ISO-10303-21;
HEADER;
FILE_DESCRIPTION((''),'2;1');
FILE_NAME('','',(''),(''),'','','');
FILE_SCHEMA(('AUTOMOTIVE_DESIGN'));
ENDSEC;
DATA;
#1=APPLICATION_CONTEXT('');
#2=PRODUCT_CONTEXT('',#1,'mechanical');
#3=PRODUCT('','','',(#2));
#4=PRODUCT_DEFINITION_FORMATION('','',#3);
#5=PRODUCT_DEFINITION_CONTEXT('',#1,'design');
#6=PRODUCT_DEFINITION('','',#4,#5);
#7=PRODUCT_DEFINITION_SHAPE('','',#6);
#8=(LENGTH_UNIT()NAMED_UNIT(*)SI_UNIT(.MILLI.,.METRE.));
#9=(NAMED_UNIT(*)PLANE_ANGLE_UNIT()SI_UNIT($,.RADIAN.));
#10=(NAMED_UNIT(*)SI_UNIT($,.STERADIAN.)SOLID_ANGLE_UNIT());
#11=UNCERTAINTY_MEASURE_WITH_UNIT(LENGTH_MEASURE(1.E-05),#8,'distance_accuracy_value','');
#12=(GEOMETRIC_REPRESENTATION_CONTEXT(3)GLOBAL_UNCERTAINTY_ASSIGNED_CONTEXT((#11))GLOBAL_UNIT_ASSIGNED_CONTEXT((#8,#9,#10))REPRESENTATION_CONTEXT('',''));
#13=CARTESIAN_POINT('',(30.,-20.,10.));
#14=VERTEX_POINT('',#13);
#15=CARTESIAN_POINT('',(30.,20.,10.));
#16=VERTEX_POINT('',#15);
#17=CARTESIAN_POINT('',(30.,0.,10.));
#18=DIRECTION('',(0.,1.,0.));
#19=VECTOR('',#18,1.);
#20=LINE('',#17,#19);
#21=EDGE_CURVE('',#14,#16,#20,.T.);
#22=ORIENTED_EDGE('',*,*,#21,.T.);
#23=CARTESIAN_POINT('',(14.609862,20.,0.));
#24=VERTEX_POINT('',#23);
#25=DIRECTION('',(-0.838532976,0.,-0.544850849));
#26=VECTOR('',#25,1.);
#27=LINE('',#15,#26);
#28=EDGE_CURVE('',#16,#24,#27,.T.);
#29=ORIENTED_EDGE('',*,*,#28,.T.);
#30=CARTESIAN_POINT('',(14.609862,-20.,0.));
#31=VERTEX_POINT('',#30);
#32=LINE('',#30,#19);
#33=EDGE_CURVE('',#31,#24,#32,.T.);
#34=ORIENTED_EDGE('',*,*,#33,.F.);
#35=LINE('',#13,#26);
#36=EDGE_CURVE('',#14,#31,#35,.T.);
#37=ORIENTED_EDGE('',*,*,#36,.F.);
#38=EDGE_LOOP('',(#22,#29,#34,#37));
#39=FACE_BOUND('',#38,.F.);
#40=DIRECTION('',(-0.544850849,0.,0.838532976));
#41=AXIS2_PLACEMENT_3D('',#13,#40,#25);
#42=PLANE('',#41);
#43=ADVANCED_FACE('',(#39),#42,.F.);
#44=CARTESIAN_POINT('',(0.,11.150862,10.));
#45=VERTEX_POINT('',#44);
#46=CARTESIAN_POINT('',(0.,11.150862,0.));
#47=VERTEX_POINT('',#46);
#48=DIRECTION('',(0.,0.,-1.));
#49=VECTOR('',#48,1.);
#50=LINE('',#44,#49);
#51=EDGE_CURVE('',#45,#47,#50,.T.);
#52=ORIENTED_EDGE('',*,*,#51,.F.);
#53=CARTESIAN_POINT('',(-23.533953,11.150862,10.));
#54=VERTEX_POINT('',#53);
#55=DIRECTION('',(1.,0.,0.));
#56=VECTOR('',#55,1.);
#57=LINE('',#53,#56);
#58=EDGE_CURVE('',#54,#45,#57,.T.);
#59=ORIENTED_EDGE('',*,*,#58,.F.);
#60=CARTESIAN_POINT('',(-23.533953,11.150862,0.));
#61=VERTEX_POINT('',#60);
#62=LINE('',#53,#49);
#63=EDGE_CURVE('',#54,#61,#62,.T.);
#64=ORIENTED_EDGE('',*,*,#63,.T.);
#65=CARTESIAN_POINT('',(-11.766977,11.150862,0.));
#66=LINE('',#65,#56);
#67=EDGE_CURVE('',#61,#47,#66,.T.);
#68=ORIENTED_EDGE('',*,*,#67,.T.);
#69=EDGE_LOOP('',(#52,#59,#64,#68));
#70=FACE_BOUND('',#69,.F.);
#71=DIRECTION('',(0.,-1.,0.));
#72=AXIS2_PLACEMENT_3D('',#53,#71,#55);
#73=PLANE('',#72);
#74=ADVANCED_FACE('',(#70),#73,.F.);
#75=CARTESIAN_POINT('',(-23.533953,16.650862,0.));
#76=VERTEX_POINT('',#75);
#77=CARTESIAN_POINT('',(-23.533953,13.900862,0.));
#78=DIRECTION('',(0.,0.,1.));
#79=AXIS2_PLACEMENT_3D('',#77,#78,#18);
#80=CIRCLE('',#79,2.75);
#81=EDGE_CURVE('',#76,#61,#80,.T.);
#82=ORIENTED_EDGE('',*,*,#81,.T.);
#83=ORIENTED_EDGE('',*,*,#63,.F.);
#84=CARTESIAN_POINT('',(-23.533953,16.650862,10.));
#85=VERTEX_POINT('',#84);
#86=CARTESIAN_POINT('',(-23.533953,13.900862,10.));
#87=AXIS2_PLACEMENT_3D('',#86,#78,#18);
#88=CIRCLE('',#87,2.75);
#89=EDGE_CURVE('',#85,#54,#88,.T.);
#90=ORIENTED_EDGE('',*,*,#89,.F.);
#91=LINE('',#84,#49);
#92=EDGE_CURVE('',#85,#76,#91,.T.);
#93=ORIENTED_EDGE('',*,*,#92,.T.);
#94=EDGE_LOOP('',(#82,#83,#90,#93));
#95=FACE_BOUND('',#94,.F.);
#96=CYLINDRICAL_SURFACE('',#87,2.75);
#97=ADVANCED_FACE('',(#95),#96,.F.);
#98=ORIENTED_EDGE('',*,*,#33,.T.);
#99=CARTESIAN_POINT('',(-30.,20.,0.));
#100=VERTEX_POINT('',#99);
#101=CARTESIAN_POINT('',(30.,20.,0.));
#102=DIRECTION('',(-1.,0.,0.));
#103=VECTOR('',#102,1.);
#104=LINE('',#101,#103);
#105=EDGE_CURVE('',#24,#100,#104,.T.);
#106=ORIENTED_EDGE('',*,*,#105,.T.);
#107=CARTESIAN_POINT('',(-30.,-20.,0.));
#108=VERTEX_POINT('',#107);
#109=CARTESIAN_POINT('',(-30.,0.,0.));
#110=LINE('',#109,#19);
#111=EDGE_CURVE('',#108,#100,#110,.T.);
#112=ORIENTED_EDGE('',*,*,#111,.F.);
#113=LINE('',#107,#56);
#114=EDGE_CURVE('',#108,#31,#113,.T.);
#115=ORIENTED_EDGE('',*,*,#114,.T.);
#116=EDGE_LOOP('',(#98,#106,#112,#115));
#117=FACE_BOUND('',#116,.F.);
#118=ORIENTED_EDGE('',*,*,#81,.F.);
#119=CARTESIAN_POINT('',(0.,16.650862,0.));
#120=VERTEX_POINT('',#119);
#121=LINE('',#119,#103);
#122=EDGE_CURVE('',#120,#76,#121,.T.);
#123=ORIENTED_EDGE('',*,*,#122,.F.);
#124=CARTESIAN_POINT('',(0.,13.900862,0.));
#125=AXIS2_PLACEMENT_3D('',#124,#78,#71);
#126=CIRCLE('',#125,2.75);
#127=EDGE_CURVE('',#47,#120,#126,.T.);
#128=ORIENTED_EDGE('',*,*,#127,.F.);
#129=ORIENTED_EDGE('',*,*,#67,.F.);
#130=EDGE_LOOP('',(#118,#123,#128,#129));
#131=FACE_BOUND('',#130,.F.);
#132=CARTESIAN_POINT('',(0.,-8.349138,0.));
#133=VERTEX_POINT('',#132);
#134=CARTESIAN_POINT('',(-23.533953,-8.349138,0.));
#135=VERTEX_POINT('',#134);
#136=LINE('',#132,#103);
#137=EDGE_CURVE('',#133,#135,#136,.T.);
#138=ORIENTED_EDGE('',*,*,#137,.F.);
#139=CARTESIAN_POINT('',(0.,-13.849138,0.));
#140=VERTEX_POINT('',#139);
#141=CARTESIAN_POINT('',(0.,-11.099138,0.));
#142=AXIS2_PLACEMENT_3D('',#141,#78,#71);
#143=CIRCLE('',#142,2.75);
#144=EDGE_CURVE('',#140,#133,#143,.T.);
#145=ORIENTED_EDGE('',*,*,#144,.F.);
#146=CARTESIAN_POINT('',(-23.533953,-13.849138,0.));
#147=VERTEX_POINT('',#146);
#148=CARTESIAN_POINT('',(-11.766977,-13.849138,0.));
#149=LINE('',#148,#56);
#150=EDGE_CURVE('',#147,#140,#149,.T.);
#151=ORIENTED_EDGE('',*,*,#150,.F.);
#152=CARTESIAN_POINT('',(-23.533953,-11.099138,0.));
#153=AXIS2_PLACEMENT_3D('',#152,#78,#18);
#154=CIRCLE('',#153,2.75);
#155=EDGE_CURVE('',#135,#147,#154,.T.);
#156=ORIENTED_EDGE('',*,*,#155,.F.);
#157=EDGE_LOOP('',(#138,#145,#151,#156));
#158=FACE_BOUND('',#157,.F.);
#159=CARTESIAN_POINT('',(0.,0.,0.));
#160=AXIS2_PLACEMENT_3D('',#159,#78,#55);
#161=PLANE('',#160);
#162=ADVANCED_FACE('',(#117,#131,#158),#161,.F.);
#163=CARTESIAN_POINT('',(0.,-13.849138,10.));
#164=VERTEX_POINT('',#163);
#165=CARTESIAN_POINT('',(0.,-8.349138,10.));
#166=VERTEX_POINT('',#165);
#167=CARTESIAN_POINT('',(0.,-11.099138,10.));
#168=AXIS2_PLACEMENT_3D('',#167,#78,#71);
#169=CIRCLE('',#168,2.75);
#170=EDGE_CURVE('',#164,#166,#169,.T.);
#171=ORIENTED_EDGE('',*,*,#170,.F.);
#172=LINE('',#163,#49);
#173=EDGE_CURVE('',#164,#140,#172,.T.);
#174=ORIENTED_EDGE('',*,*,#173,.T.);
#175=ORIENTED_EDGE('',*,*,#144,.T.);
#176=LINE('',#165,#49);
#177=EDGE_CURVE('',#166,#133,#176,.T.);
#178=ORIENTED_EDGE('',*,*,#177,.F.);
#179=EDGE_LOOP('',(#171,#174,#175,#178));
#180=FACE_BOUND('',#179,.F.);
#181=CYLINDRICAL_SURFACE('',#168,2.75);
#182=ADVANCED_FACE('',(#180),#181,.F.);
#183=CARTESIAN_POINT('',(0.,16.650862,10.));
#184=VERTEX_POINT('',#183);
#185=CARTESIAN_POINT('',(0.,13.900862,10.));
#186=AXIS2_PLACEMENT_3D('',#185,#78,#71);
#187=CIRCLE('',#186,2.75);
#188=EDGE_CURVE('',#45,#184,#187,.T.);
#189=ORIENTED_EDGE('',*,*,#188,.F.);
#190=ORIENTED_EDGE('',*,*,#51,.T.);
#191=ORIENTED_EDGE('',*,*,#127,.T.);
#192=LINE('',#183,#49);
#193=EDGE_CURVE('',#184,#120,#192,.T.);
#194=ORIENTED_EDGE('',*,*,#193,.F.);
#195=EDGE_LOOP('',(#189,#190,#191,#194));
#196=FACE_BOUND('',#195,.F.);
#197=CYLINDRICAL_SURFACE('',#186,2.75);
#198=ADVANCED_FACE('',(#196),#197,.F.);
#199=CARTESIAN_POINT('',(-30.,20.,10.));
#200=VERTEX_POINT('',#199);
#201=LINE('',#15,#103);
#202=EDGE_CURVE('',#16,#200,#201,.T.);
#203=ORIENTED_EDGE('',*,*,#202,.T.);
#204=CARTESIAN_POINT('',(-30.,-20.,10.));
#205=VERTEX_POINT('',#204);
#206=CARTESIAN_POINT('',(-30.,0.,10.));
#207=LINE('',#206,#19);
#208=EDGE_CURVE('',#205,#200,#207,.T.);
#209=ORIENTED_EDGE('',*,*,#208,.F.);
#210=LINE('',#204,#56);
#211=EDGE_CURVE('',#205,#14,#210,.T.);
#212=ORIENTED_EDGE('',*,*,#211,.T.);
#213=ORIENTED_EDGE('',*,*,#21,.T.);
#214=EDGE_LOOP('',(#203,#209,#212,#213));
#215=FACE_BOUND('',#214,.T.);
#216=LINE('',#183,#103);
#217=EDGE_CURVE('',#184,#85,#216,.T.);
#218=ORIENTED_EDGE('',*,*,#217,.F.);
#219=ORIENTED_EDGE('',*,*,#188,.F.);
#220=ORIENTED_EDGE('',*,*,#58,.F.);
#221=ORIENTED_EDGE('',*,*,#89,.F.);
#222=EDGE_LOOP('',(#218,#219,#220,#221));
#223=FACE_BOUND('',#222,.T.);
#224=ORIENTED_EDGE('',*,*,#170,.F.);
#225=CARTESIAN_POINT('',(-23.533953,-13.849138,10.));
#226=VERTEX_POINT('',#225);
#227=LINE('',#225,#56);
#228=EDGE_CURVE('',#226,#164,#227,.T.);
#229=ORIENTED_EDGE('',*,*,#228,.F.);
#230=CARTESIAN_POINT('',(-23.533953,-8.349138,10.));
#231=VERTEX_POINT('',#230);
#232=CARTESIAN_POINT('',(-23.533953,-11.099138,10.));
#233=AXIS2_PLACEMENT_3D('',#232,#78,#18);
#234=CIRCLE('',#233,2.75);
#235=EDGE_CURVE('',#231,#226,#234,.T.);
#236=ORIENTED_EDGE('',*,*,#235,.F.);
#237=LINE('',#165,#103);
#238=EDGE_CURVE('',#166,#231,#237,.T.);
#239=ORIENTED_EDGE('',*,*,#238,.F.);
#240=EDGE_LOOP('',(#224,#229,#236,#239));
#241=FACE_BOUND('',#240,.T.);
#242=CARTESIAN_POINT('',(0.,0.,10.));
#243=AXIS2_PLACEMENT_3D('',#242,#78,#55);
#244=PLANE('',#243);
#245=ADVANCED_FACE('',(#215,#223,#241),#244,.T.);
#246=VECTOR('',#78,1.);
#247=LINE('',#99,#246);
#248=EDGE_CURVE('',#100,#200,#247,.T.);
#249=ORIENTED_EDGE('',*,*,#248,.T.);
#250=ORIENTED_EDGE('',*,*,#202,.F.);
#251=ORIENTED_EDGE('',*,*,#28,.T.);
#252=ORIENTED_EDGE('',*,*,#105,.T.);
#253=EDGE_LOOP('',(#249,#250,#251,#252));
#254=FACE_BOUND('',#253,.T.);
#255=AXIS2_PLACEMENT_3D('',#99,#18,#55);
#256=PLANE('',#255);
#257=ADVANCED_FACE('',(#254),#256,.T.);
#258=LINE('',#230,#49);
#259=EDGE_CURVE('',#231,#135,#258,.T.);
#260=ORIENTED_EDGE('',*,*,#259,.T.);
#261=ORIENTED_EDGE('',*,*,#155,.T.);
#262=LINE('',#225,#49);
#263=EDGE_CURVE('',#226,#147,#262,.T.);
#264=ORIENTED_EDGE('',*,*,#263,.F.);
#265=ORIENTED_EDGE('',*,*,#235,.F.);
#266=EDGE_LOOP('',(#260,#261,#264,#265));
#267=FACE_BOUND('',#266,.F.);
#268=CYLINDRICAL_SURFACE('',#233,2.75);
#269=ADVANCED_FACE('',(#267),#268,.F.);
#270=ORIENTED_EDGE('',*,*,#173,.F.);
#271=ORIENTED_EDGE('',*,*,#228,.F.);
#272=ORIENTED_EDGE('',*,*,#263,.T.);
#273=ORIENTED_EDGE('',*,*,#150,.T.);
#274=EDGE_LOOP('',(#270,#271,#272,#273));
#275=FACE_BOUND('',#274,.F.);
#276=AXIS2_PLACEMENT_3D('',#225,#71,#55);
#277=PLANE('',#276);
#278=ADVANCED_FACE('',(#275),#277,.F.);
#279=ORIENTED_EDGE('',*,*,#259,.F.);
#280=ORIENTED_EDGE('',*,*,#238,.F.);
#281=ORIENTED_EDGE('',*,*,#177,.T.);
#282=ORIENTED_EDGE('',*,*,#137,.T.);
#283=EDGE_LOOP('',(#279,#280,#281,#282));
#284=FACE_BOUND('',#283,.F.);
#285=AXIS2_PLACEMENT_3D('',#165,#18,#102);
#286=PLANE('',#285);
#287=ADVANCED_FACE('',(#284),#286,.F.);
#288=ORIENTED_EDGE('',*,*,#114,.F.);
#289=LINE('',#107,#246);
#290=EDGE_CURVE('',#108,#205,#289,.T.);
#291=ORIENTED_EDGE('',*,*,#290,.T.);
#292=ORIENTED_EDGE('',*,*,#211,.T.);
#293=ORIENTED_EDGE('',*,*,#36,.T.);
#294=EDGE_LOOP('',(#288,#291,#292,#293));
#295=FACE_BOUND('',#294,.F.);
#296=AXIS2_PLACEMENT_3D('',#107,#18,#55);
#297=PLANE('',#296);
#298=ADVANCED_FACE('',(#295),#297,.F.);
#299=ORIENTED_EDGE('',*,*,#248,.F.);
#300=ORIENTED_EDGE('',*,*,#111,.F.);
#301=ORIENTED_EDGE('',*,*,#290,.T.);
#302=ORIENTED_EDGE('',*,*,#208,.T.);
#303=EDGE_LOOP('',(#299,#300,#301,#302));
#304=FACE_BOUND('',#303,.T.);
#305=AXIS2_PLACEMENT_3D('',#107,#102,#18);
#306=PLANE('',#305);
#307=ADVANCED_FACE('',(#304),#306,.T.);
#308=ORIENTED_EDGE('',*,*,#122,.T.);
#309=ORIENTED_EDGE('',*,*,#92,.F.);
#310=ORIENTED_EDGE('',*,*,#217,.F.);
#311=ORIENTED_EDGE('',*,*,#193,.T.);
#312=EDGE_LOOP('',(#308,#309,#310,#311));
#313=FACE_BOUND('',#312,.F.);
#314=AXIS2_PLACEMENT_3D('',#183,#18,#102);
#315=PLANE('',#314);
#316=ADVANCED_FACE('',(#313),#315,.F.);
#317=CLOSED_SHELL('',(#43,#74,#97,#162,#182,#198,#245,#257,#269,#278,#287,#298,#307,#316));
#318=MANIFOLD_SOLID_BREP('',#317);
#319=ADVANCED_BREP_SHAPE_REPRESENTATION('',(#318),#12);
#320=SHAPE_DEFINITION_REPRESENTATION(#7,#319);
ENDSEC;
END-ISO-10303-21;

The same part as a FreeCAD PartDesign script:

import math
import FreeCAD as App
import Part
import Sketcher
from FreeCAD import Vector


def add_polygon(sketch, points):
    """Adds a closed chain of lines whose ends are joined by coincident constraints."""
    first, n = sketch.GeometryCount, len(points)
    for a, b in zip(points, points[1:] + points[:1]):
        sketch.addGeometry(Part.LineSegment(App.Vector(*a, 0), App.Vector(*b, 0)), False)
    for i in range(n):
        sketch.addConstraint(Sketcher.Constraint("Coincident", first + i, 2, first + (i + 1) % n, 1))

doc = App.newDocument("Part")
body = doc.addObject("PartDesign::Body", "Body")

# Sketch on XY plane
sketch1 = body.newObject("Sketcher::SketchObject", "Sketch")
sketch1.AttachmentSupport = (doc.getObject("XY_Plane"), [""])
sketch1.MapMode = "FlatFace"
add_polygon(sketch1, [(-30, 20), (-30, -20), (30, -20), (30, 20)])  # lines 0-3
sketch1.addConstraint(Sketcher.Constraint("Vertical", 0))
sketch1.addConstraint(Sketcher.Constraint("Horizontal", 1))
sketch1.addConstraint(Sketcher.Constraint("Vertical", 2))
sketch1.addConstraint(Sketcher.Constraint("Horizontal", 3))
sketch1.addConstraint(Sketcher.Constraint("Symmetric", 0, 2, 2, 2, -1, 1))
sketch1.addConstraint(Sketcher.Constraint("DistanceX", 1, 1, 1, 2, 60.0))
sketch1.addConstraint(Sketcher.Constraint("DistanceY", 0, 2, 0, 1, 40.0))
pad1 = body.newObject("PartDesign::Pad", "Pad")
pad1.Profile = sketch1
pad1.Length = 10

# Sketch on XZ plane
sketch2 = body.newObject("Sketcher::SketchObject", "Sketch001")
sketch2.AttachmentSupport = (doc.getObject("XZ_Plane"), [""])
sketch2.MapMode = "FlatFace"
sketch2.AttachmentOffset = App.Placement(Vector(0, 0, 20), App.Rotation())
add_polygon(sketch2, [(0, 0), (15, 10), (-30, 10), (-30, 0)])  # lines 0-3
sketch2.addConstraint(Sketcher.Constraint("Horizontal", 1))
sketch2.addConstraint(Sketcher.Constraint("Vertical", 2))
sketch2.addConstraint(Sketcher.Constraint("Horizontal", 3))
sketch2.addConstraint(Sketcher.Constraint("Coincident", 3, 2, -1, 1))
sketch2.addConstraint(Sketcher.Constraint("DistanceX", 3, 1, 3, 2, 30.0))
sketch2.addConstraint(Sketcher.Constraint("DistanceY", 2, 2, 2, 1, 10.0))
sketch2.addConstraint(Sketcher.Constraint("DistanceX", 1, 2, 1, 1, 44.609862))
pad2 = body.newObject("PartDesign::Pad", "Pad001")
pad2.Profile = sketch2
pad2.Length = 40
pad2.Reversed = True

# Sketch on XY plane
sketch3 = body.newObject("Sketcher::SketchObject", "Sketch002")
sketch3.AttachmentSupport = (doc.getObject("XY_Plane"), [""])
sketch3.MapMode = "FlatFace"
sketch3.AttachmentOffset = App.Placement(Vector(0, 0, 10), App.Rotation())
sketch3.addGeometry(Part.ArcOfCircle(Part.Circle(Vector(0, 13.9, 0), Vector(0, 0, 1), 2.8), math.radians(-90), math.radians(90)), False)
sketch3.addGeometry(Part.LineSegment(Vector(0, 16.7, 0), Vector(-23.5, 16.7, 0)), False)
sketch3.addGeometry(Part.ArcOfCircle(Part.Circle(Vector(-23.5, 13.9, 0), Vector(0, 0, 1), 2.8), math.radians(90), math.radians(270)), False)
sketch3.addGeometry(Part.LineSegment(Vector(-23.5, 11.2, 0), Vector(0, 11.2, 0)), False)
sketch3.addGeometry(Part.ArcOfCircle(Part.Circle(Vector(0, -11.1, 0), Vector(0, 0, 1), 2.8), math.radians(-90), math.radians(90)), False)
sketch3.addGeometry(Part.LineSegment(Vector(0, -8.3, 0), Vector(-23.5, -8.3, 0)), False)
sketch3.addGeometry(Part.ArcOfCircle(Part.Circle(Vector(-23.5, -11.1, 0), Vector(0, 0, 1), 2.8), math.radians(90), math.radians(270)), False)
sketch3.addGeometry(Part.LineSegment(Vector(-23.5, -13.8, 0), Vector(0, -13.8, 0)), False)
sketch3.addConstraint(Sketcher.Constraint("Tangent", 0, 2, 1, 1))
sketch3.addConstraint(Sketcher.Constraint("Tangent", 1, 2, 2, 1))
sketch3.addConstraint(Sketcher.Constraint("Tangent", 2, 2, 3, 1))
sketch3.addConstraint(Sketcher.Constraint("Tangent", 3, 2, 0, 1))
sketch3.addConstraint(Sketcher.Constraint("Tangent", 4, 2, 5, 1))
sketch3.addConstraint(Sketcher.Constraint("Tangent", 5, 2, 6, 1))
sketch3.addConstraint(Sketcher.Constraint("Tangent", 6, 2, 7, 1))
sketch3.addConstraint(Sketcher.Constraint("Tangent", 7, 2, 4, 1))
sketch3.addConstraint(Sketcher.Constraint("Horizontal", 1))
sketch3.addConstraint(Sketcher.Constraint("Horizontal", 3))
sketch3.addConstraint(Sketcher.Constraint("Horizontal", 5))
sketch3.addConstraint(Sketcher.Constraint("Horizontal", 7))
sketch3.addConstraint(Sketcher.Constraint("Equal", 2, 4))
sketch3.addConstraint(Sketcher.Constraint("PointOnObject", 0, 3, -2))
sketch3.addConstraint(Sketcher.Constraint("PointOnObject", 4, 3, -2))
sketch3.addConstraint(Sketcher.Constraint("Vertical", 2, 3, 6, 3))
sketch3.addConstraint(Sketcher.Constraint("Radius", 0, 2.75))
sketch3.addConstraint(Sketcher.Constraint("DistanceY", 4, 3, 0, 3, 25.0))
sketch3.addConstraint(Sketcher.Constraint("DistanceX", 1, 2, 1, 1, 23.533953))
sketch3.addConstraint(Sketcher.Constraint("DistanceY", -1, 1, 0, 2, 16.650862))
pocket1 = body.newObject("PartDesign::Pocket", "Pocket")
pocket1.Profile = sketch3
pocket1.Length = 25

# Sketch on XZ plane
sketch4 = body.newObject("Sketcher::SketchObject", "Sketch003")
sketch4.AttachmentSupport = (doc.getObject("XZ_Plane"), [""])
sketch4.MapMode = "FlatFace"
sketch4.AttachmentOffset = App.Placement(Vector(0, 0, 20), App.Rotation())
add_polygon(sketch4, [(30, 0), (30, 10), (15, 0)])  # lines 0-2
sketch4.addConstraint(Sketcher.Constraint("Vertical", 0))
sketch4.addConstraint(Sketcher.Constraint("Horizontal", 2))
sketch4.addConstraint(Sketcher.Constraint("PointOnObject", 1, 2, -1))
sketch4.addConstraint(Sketcher.Constraint("DistanceY", 0, 1, 0, 2, 10.0))
sketch4.addConstraint(Sketcher.Constraint("DistanceX", -1, 1, 0, 2, 30.0))
sketch4.addConstraint(Sketcher.Constraint("DistanceX", 2, 1, 2, 2, 15.390138))
pocket2 = body.newObject("PartDesign::Pocket", "Pocket001")
pocket2.Profile = sketch4
pocket2.Length = 40

doc.recompute()
